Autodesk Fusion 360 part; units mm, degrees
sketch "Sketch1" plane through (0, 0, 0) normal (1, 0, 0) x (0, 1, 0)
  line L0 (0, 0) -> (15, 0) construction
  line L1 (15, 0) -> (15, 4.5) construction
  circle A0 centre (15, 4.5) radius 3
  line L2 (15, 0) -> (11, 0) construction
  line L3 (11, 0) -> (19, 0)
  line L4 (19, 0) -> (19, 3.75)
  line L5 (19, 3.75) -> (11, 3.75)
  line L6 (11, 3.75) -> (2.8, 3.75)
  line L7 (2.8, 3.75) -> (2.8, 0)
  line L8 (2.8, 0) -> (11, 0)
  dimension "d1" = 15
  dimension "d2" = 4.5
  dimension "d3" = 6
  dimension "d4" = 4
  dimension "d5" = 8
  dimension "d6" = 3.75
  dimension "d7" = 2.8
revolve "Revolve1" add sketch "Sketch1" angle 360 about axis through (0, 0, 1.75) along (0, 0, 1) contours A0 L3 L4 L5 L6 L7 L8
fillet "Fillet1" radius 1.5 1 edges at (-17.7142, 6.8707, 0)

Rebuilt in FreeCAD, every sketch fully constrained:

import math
import FreeCAD as App
import Part
import Sketcher


def edges_at(feature, points):
    """Names of the edges that pass closest to the given points."""
    edges = feature.Shape.Edges
    near = lambda p: min(range(len(edges)), key=lambda i: edges[i].distToShape(Part.Vertex(*p))[0])
    return sorted({f"Edge{near(p) + 1}" for p in points})

doc = App.newDocument("Part")
body = doc.addObject("PartDesign::Body", "Body")

# Sketch on YZ plane
sketch1 = body.newObject("Sketcher::SketchObject", "Sketch")
sketch1.AttachmentSupport = (doc.getObject("YZ_Plane"), [""])
sketch1.MapMode = "FlatFace"
sketch1.addGeometry([
    Part.ArcOfCircle(Part.Circle(App.Vector(15, 4.5, 0), App.Vector(0, 0, 1), 3), math.radians(-165.522488), math.radians(-14.477512)),  # 0
    Part.LineSegment(App.Vector(12.095262, 3.75, 0), App.Vector(2.8, 3.75, 0)),  # 1
    Part.LineSegment(App.Vector(2.8, 3.75, 0), App.Vector(2.8, 0, 0)),  # 2
    Part.LineSegment(App.Vector(2.8, 0, 0), App.Vector(19, 0, 0)),  # 3
    Part.LineSegment(App.Vector(19, 0, 0), App.Vector(19, 3.75, 0)),  # 4
    Part.LineSegment(App.Vector(19, 3.75, 0), App.Vector(17.904738, 3.75, 0)),  # 5
], False)
sketch1.addConstraint([
    Sketcher.Constraint("Coincident", 0, 1, 1, 1),
    Sketcher.Constraint("Coincident", 1, 2, 2, 1),
    Sketcher.Constraint("Coincident", 2, 2, 3, 1),
    Sketcher.Constraint("Coincident", 3, 2, 4, 1),
    Sketcher.Constraint("Coincident", 4, 2, 5, 1),
    Sketcher.Constraint("Coincident", 5, 2, 0, 2),
    Sketcher.Constraint("Horizontal", 1),
    Sketcher.Constraint("Vertical", 2),
    Sketcher.Constraint("Horizontal", 3),
    Sketcher.Constraint("Vertical", 4),
    Sketcher.Constraint("Horizontal", 5),
    Sketcher.Constraint("PointOnObject", 2, 2, -1),
    Sketcher.Constraint("Horizontal", 1, 2, 4, 2),
    Sketcher.Constraint("Radius", 0, 3.0),
    Sketcher.Constraint("DistanceX", -1, 1, 0, 3, 15.0),
    Sketcher.Constraint("DistanceX", 0, 3, 3, 2, 4.0),
    Sketcher.Constraint("DistanceY", 2, 2, 2, 1, 3.75),
    Sketcher.Constraint("DistanceY", -1, 1, 0, 3, 4.5),
    Sketcher.Constraint("DistanceX", -1, 1, 1, 2, 2.8),
])
revolution = body.newObject("PartDesign::Revolution", "Revolution")
revolution.Profile = sketch1
revolution.ReferenceAxis = (sketch1, ["V_Axis"])
revolution.Angle = 360
doc.recompute()

fillet = body.newObject("PartDesign::Fillet", "Fillet")
fillet.Base = (revolution, edges_at(revolution, [(-17.714, 6.871, 0)]))
fillet.Radius = 1.5

doc.recompute()
